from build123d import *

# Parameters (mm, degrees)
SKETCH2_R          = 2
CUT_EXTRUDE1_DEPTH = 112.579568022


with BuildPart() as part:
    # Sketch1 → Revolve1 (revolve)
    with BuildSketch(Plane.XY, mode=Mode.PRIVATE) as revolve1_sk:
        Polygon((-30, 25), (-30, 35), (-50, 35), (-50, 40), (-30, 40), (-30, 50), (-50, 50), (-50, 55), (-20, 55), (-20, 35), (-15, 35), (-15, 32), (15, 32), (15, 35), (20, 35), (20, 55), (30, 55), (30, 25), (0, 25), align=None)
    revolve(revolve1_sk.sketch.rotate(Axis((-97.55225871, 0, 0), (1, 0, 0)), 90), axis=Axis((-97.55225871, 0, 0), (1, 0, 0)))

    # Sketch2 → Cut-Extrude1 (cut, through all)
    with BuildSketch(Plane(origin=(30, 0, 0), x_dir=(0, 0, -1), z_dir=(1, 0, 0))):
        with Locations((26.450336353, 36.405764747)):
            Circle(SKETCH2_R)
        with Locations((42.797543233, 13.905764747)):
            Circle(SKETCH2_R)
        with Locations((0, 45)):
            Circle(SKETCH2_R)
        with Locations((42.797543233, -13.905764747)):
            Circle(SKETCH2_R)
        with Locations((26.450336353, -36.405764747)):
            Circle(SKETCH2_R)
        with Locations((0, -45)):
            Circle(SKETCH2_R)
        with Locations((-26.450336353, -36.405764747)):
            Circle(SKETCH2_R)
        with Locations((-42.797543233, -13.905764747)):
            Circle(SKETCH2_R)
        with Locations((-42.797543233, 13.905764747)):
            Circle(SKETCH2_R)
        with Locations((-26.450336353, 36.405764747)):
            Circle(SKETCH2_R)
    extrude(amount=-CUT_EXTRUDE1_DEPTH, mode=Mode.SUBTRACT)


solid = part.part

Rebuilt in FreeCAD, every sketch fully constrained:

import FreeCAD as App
import Part
import Sketcher

V = App.Vector
Q = App.Units.Quantity


def add_polygon(sketch, points):
    """Adds a closed chain of lines whose ends are joined by coincident constraints."""
    first, n = sketch.GeometryCount, len(points)
    for a, b in zip(points, points[1:] + points[:1]):
        sketch.addGeometry(Part.LineSegment(App.Vector(*a, 0), App.Vector(*b, 0)), False)
    for i in range(n):
        sketch.addConstraint(Sketcher.Constraint("Coincident", first + i, 2, first + (i + 1) % n, 1))

doc = App.newDocument("Part")
body = doc.addObject("PartDesign::Body", "Body")

sketch1 = body.newObject("Sketcher::SketchObject", "Sketch")
sketch1.AttachmentSupport = (doc.getObject("XY_Plane"), [""])
sketch1.MapMode = "FlatFace"
add_polygon(sketch1, [(-30, 35), (-30, 25), (30, 25), (30, 55), (20, 55), (20, 35), (15, 35), (15, 32), (-15, 32), (-15, 35), (-20, 35), (-20, 55), (-50, 55), (-50, 50), (-30, 50), (-30, 40), (-50, 40), (-50, 35)])
sketch1.addConstraint(Sketcher.Constraint("Vertical", 0))
sketch1.addConstraint(Sketcher.Constraint("Horizontal", 1))
sketch1.addConstraint(Sketcher.Constraint("Vertical", 2))
sketch1.addConstraint(Sketcher.Constraint("Horizontal", 3))
sketch1.addConstraint(Sketcher.Constraint("Vertical", 4))
sketch1.addConstraint(Sketcher.Constraint("Horizontal", 5))
sketch1.addConstraint(Sketcher.Constraint("Vertical", 6))
sketch1.addConstraint(Sketcher.Constraint("Horizontal", 7))
sketch1.addConstraint(Sketcher.Constraint("Vertical", 8))
sketch1.addConstraint(Sketcher.Constraint("Horizontal", 9))
sketch1.addConstraint(Sketcher.Constraint("Vertical", 10))
sketch1.addConstraint(Sketcher.Constraint("Horizontal", 11))
sketch1.addConstraint(Sketcher.Constraint("Vertical", 12))
sketch1.addConstraint(Sketcher.Constraint("Horizontal", 13))
sketch1.addConstraint(Sketcher.Constraint("Vertical", 14))
sketch1.addConstraint(Sketcher.Constraint("Horizontal", 15))
sketch1.addConstraint(Sketcher.Constraint("Vertical", 16))
sketch1.addConstraint(Sketcher.Constraint("Horizontal", 17))
sketch1.addConstraint(Sketcher.Constraint("Symmetric", 5, 2, 8, 2, -2))
sketch1.addConstraint(Sketcher.Constraint("Symmetric", 3, 2, 10, 2, -2))
sketch1.addConstraint(Sketcher.Constraint("Horizontal", 9, 2, 16, 2))
sketch1.addConstraint(Sketcher.Constraint("Vertical", 0, 2, 13, 2))
sketch1.addConstraint(Sketcher.Constraint("Vertical", 12, 2, 15, 2))
sketch1.addConstraint(Sketcher.Constraint("Equal", 7, 11))
sketch1.addConstraint(Sketcher.Constraint("Equal", 3, 0))
sketch1.addConstraint(Sketcher.Constraint("Equal", 11, 2))
sketch1.addConstraint(Sketcher.Constraint("Equal", 17, 4))
sketch1.addConstraint(Sketcher.Constraint("Equal", 9, 12))
sketch1.addConstraint(Sketcher.Constraint("Equal", 0, 14))
sketch1.addConstraint(Sketcher.Constraint("Equal", 12, 16))
sketch1.addConstraint(Sketcher.Constraint("DistanceX", 1, 1, 1, 2, Q("60 mm")))
sketch1.addConstraint(Sketcher.Constraint("DistanceX", 3, 2, 3, 1, Q("10 mm")))
sketch1.addConstraint(Sketcher.Constraint("DistanceY", 6, 2, 6, 1, Q("3 mm")))
sketch1.addConstraint(Sketcher.Constraint("DistanceY", -1, 1, 0, 2, Q("25 mm")))
revolution = body.newObject("PartDesign::Revolution", "Revolution")
revolution.Profile = sketch1
revolution.ReferenceAxis = (sketch1, ["H_Axis"])
revolution.Angle = 360

sketch2 = body.newObject("Sketcher::SketchObject", "Sketch001")
sketch2.AttachmentSupport = (doc.getObject("YZ_Plane"), [""])
sketch2.MapMode = "FlatFace"
sketch2.AttachmentOffset = App.Placement(V(0, 0, 30), App.Rotation())
sketch2.addGeometry(Part.Circle(V(36.405765, -26.450336, 0), V(0, 0, 1), 2), False)
sketch2.addGeometry(Part.Circle(V(13.905765, -42.797543, 0), V(0, 0, 1), 2), False)
sketch2.addGeometry(Part.Circle(V(45, 0, 0), V(0, 0, 1), 2), False)
sketch2.addGeometry(Part.Circle(V(-13.905765, -42.797543, 0), V(0, 0, 1), 2), False)
sketch2.addGeometry(Part.Circle(V(-36.405765, -26.450336, 0), V(0, 0, 1), 2), False)
sketch2.addGeometry(Part.Circle(V(-45, 0, 0), V(0, 0, 1), 2), False)
sketch2.addGeometry(Part.Circle(V(-36.405765, 26.450336, 0), V(0, 0, 1), 2), False)
sketch2.addGeometry(Part.Circle(V(-13.905765, 42.797543, 0), V(0, 0, 1), 2), False)
sketch2.addGeometry(Part.Circle(V(13.905765, 42.797543, 0), V(0, 0, 1), 2), False)
sketch2.addGeometry(Part.Circle(V(36.405765, 26.450336, 0), V(0, 0, 1), 2), False)
sketch2.addConstraint(Sketcher.Constraint("Equal", 0, 1))
sketch2.addConstraint(Sketcher.Constraint("Equal", 1, 2))
sketch2.addConstraint(Sketcher.Constraint("Equal", 2, 3))
sketch2.addConstraint(Sketcher.Constraint("Equal", 3, 4))
sketch2.addConstraint(Sketcher.Constraint("Equal", 4, 5))
sketch2.addConstraint(Sketcher.Constraint("Equal", 5, 6))
sketch2.addConstraint(Sketcher.Constraint("Equal", 6, 7))
sketch2.addConstraint(Sketcher.Constraint("Equal", 7, 8))
sketch2.addConstraint(Sketcher.Constraint("Equal", 8, 9))
sketch2.addConstraint(Sketcher.Constraint("Symmetric", 2, 3, 5, 3, -1, 1))
sketch2.addConstraint(Sketcher.Constraint("Symmetric", 0, 3, 6, 3, -1, 1))
sketch2.addConstraint(Sketcher.Constraint("Symmetric", 1, 3, 7, 3, -1, 1))
sketch2.addConstraint(Sketcher.Constraint("Symmetric", 3, 3, 8, 3, -1, 1))
sketch2.addConstraint(Sketcher.Constraint("Symmetric", 4, 3, 9, 3, -1, 1))
sketch2.addConstraint(Sketcher.Constraint("Symmetric", 1, 3, 3, 3, -2))
sketch2.addConstraint(Sketcher.Constraint("Symmetric", 0, 3, 4, 3, -2))
sketch2.addConstraint(Sketcher.Constraint("PointOnObject", 2, 3, -1))
sketch2.addConstraint(Sketcher.Constraint("Diameter", 0, Q("4 mm")))
sketch2.addConstraint(Sketcher.Constraint("DistanceX", -1, 1, 2, 3, Q("45 mm")))
sketch2.addConstraint(Sketcher.Constraint("DistanceX", 1, 3, 0, 3, Q("22.5 mm")))
sketch2.addConstraint(Sketcher.Constraint("DistanceX", 3, 3, 1, 3, Q("27.811529 mm")))
sketch2.addConstraint(Sketcher.Constraint("DistanceY", 3, 3, 6, 3, Q("69.24788 mm")))
sketch2.addConstraint(Sketcher.Constraint("DistanceY", 0, 3, -1, 1, Q("26.450336 mm")))
pocket1 = body.newObject("PartDesign::Pocket", "Pocket")
pocket1.Profile = sketch2
pocket1.Type = "ThroughAll"

doc.recompute()
